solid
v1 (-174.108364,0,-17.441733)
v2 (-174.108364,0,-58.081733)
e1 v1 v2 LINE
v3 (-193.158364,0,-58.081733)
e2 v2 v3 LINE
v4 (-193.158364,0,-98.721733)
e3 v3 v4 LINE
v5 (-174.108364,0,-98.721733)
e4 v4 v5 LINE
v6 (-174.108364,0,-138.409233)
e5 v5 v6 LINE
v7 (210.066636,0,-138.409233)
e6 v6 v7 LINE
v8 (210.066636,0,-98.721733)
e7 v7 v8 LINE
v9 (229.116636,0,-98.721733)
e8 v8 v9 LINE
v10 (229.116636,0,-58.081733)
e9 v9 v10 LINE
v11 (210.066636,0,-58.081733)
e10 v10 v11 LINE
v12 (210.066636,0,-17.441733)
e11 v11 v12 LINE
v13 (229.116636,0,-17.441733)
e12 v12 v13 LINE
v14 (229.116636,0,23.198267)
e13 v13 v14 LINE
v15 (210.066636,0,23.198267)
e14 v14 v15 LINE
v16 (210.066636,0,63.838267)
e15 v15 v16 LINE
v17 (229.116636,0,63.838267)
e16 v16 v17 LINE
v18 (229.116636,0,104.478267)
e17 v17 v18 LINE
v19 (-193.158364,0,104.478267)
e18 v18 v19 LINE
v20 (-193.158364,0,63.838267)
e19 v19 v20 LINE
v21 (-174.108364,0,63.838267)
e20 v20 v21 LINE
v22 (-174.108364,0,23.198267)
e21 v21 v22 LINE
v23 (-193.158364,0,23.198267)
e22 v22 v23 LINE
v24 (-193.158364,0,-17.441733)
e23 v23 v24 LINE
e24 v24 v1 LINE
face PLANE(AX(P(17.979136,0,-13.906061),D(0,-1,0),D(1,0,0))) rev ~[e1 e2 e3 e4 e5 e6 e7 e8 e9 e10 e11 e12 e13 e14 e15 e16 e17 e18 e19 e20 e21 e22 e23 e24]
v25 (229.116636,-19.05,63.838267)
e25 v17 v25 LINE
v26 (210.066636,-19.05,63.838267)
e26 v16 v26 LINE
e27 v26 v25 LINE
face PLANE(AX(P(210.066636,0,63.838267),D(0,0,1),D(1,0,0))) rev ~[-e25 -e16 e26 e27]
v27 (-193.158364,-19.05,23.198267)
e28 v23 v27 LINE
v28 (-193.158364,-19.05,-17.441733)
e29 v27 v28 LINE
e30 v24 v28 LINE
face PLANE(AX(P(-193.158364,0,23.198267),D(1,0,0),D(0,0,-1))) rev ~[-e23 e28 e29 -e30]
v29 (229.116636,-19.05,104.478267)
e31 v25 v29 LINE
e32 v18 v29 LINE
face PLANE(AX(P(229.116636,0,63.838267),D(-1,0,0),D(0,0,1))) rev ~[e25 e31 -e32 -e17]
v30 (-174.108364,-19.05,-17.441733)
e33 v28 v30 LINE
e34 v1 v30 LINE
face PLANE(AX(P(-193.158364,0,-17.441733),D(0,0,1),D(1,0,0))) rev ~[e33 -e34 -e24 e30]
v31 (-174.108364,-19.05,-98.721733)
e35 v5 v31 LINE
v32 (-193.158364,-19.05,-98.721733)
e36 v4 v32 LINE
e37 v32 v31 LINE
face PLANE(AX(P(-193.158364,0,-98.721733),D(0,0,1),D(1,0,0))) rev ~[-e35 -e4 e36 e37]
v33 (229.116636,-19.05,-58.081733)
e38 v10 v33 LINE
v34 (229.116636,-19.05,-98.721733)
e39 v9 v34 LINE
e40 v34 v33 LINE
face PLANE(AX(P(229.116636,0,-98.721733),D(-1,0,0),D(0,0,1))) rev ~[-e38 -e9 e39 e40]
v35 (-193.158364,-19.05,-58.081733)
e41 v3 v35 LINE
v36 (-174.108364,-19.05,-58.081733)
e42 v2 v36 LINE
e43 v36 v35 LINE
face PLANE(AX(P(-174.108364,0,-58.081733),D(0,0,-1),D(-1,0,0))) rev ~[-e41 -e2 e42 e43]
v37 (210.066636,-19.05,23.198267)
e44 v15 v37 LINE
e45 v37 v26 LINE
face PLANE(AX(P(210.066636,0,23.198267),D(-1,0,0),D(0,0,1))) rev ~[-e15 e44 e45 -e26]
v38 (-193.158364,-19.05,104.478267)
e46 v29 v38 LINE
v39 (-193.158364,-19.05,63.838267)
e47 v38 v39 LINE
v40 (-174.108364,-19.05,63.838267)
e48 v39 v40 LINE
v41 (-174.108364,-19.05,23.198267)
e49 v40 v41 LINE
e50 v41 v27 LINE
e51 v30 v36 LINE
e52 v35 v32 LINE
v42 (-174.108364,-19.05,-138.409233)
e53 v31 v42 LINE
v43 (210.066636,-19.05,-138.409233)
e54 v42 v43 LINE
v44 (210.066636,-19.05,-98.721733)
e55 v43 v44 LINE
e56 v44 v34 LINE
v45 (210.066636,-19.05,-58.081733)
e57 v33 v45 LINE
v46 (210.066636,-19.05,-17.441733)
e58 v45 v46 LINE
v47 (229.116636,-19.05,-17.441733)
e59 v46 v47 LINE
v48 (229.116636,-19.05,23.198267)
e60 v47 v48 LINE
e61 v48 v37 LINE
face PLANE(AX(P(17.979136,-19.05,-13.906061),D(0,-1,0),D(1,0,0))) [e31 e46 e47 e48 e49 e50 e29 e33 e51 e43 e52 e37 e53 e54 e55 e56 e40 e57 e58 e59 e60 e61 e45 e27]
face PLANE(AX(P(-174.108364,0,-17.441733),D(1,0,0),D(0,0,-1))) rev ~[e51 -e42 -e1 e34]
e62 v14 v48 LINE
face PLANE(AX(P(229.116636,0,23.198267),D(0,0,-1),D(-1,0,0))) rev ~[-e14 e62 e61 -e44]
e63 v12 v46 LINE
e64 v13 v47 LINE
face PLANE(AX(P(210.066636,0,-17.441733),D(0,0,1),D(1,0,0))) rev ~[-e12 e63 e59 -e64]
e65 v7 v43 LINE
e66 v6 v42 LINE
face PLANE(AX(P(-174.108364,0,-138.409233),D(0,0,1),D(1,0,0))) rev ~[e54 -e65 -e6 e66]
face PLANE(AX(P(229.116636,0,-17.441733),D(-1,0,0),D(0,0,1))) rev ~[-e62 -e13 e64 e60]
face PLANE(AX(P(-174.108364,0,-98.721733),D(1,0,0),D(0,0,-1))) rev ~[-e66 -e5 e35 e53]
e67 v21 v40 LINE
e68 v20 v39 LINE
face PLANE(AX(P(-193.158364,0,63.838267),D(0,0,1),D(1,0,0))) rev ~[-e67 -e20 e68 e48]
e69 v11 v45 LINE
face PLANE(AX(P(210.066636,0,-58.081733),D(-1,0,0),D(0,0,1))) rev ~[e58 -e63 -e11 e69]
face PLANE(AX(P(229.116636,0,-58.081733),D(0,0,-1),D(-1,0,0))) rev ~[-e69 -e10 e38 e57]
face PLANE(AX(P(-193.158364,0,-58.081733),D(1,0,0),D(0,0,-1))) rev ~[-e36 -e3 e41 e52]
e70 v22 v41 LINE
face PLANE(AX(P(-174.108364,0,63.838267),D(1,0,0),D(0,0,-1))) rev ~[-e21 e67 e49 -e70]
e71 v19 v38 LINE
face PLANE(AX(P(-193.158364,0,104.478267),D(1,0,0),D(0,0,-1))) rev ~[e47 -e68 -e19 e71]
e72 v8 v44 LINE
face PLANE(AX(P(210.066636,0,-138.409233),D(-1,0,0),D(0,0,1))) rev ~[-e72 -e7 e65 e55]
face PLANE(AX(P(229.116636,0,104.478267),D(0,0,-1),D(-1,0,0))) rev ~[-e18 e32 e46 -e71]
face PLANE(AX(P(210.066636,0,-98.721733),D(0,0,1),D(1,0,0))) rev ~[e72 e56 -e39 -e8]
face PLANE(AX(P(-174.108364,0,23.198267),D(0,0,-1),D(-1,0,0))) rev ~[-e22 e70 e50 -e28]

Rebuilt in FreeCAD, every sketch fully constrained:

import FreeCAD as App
import Part
import Sketcher

V = App.Vector
Q = App.Units.Quantity

doc = App.newDocument("Part")
body = doc.addObject("PartDesign::Body", "Body")

# Sketch on XZ plane
sketch1 = body.newObject("Sketcher::SketchObject", "Sketch")
sketch1.AttachmentSupport = (doc.getObject("XZ_Plane"), [""])
sketch1.MapMode = "FlatFace"
sketch1.addGeometry([
    Part.LineSegment(V(-193.158364, 104.478267, 0), V(-193.158364, 63.838267, 0)),  # 0
    Part.LineSegment(V(-193.158364, 63.838267, 0), V(-174.108364, 63.838267, 0)),  # 1
    Part.LineSegment(V(-174.108364, 63.838267, 0), V(-174.108364, 23.198267, 0)),  # 2
    Part.LineSegment(V(-174.108364, 23.198267, 0), V(-193.158364, 23.198267, 0)),  # 3
    Part.LineSegment(V(-193.158364, 23.198267, 0), V(-193.158364, -17.441733, 0)),  # 4
    Part.LineSegment(V(-193.158364, -17.441733, 0), V(-174.108364, -17.441733, 0)),  # 5
    Part.LineSegment(V(-174.108364, -17.441733, 0), V(-174.108364, -58.081733, 0)),  # 6
    Part.LineSegment(V(-174.108364, -58.081733, 0), V(-193.158364, -58.081733, 0)),  # 7
    Part.LineSegment(V(-193.158364, -58.081733, 0), V(-193.158364, -98.721733, 0)),  # 8
    Part.LineSegment(V(-193.158364, -98.721733, 0), V(-174.108364, -98.721733, 0)),  # 9
    Part.LineSegment(V(-174.108364, -98.721733, 0), V(-174.108364, -138.409233, 0)),  # 10
    Part.LineSegment(V(-174.108364, -138.409233, 0), V(210.066636, -138.409233, 0)),  # 11
    Part.LineSegment(V(210.066636, -138.409233, 0), V(210.066636, -98.721733, 0)),  # 12
    Part.LineSegment(V(210.066636, -98.721733, 0), V(229.116636, -98.721733, 0)),  # 13
    Part.LineSegment(V(229.116636, -98.721733, 0), V(229.116636, -58.081733, 0)),  # 14
    Part.LineSegment(V(229.116636, -58.081733, 0), V(210.066636, -58.081733, 0)),  # 15
    Part.LineSegment(V(210.066636, -58.081733, 0), V(210.066636, -17.441733, 0)),  # 16
    Part.LineSegment(V(210.066636, -17.441733, 0), V(229.116636, -17.441733, 0)),  # 17
    Part.LineSegment(V(229.116636, -17.441733, 0), V(229.116636, 23.198267, 0)),  # 18
    Part.LineSegment(V(229.116636, 23.198267, 0), V(210.066636, 23.198267, 0)),  # 19
    Part.LineSegment(V(210.066636, 23.198267, 0), V(210.066636, 63.838267, 0)),  # 20
    Part.LineSegment(V(210.066636, 63.838267, 0), V(229.116636, 63.838267, 0)),  # 21
    Part.LineSegment(V(229.116636, 63.838267, 0), V(229.116636, 104.478267, 0)),  # 22
    Part.LineSegment(V(229.116636, 104.478267, 0), V(-193.158364, 104.478267, 0)),  # 23
], False)
sketch1.addConstraint([
    Sketcher.Constraint("Coincident", 0, 2, 1, 1),
    Sketcher.Constraint("Coincident", 1, 2, 2, 1),
    Sketcher.Constraint("Coincident", 2, 2, 3, 1),
    Sketcher.Constraint("Coincident", 3, 2, 4, 1),
    Sketcher.Constraint("Coincident", 4, 2, 5, 1),
    Sketcher.Constraint("Coincident", 5, 2, 6, 1),
    Sketcher.Constraint("Coincident", 6, 2, 7, 1),
    Sketcher.Constraint("Coincident", 7, 2, 8, 1),
    Sketcher.Constraint("Coincident", 8, 2, 9, 1),
    Sketcher.Constraint("Coincident", 9, 2, 10, 1),
    Sketcher.Constraint("Coincident", 10, 2, 11, 1),
    Sketcher.Constraint("Coincident", 11, 2, 12, 1),
    Sketcher.Constraint("Coincident", 12, 2, 13, 1),
    Sketcher.Constraint("Coincident", 13, 2, 14, 1),
    Sketcher.Constraint("Coincident", 14, 2, 15, 1),
    Sketcher.Constraint("Coincident", 15, 2, 16, 1),
    Sketcher.Constraint("Coincident", 16, 2, 17, 1),
    Sketcher.Constraint("Coincident", 17, 2, 18, 1),
    Sketcher.Constraint("Coincident", 18, 2, 19, 1),
    Sketcher.Constraint("Coincident", 19, 2, 20, 1),
    Sketcher.Constraint("Coincident", 20, 2, 21, 1),
    Sketcher.Constraint("Coincident", 21, 2, 22, 1),
    Sketcher.Constraint("Coincident", 22, 2, 23, 1),
    Sketcher.Constraint("Coincident", 23, 2, 0, 1),
    Sketcher.Constraint("Vertical", 0),
    Sketcher.Constraint("Horizontal", 1),
    Sketcher.Constraint("Vertical", 2),
    Sketcher.Constraint("Horizontal", 3),
    Sketcher.Constraint("Vertical", 4),
    Sketcher.Constraint("Horizontal", 5),
    Sketcher.Constraint("Vertical", 6),
    Sketcher.Constraint("Horizontal", 7),
    Sketcher.Constraint("Vertical", 8),
    Sketcher.Constraint("Horizontal", 9),
    Sketcher.Constraint("Vertical", 10),
    Sketcher.Constraint("Horizontal", 11),
    Sketcher.Constraint("Vertical", 12),
    Sketcher.Constraint("Horizontal", 13),
    Sketcher.Constraint("Vertical", 14),
    Sketcher.Constraint("Horizontal", 15),
    Sketcher.Constraint("Vertical", 16),
    Sketcher.Constraint("Horizontal", 17),
    Sketcher.Constraint("Vertical", 18),
    Sketcher.Constraint("Horizontal", 19),
    Sketcher.Constraint("Vertical", 20),
    Sketcher.Constraint("Horizontal", 21),
    Sketcher.Constraint("Vertical", 22),
    Sketcher.Constraint("Horizontal", 23),
    Sketcher.Constraint("Horizontal", 9, 2, 12, 2),
    Sketcher.Constraint("Horizontal", 7, 2, 14, 2),
    Sketcher.Constraint("Horizontal", 5, 2, 16, 2),
    Sketcher.Constraint("Horizontal", 3, 2, 18, 2),
    Sketcher.Constraint("Horizontal", 1, 2, 20, 2),
    Sketcher.Constraint("Vertical", 0, 2, 3, 2),
    Sketcher.Constraint("Vertical", 2, 2, 5, 2),
    Sketcher.Constraint("Vertical", 4, 2, 7, 2),
    Sketcher.Constraint("Vertical", 6, 2, 9, 2),
    Sketcher.Constraint("Vertical", 12, 2, 15, 2),
    Sketcher.Constraint("Vertical", 14, 2, 17, 2),
    Sketcher.Constraint("Vertical", 16, 2, 19, 2),
    Sketcher.Constraint("Vertical", 18, 2, 21, 2),
    Sketcher.Constraint("Equal", 9, 13),
    Sketcher.Constraint("Equal", 0, 2),
    Sketcher.Constraint("Equal", 2, 4),
    Sketcher.Constraint("Equal", 4, 6),
    Sketcher.Constraint("Equal", 6, 8),
    Sketcher.Constraint("DistanceY", 0, 2, 0, 1, Q("1.6 in")),
    Sketcher.Constraint("DistanceX", 1, 1, 1, 2, Q("0.75 in")),
    Sketcher.Constraint("DistanceX", 11, 1, 11, 2, Q("15.125 in")),
    Sketcher.Constraint("DistanceY", 10, 2, 10, 1, Q("1.5625 in")),
    Sketcher.Constraint("DistanceX", 0, 2, -1, 1, 193.158364),
    Sketcher.Constraint("DistanceY", -1, 1, 0, 2, 63.838267),
])
pad1 = body.newObject("PartDesign::Pad", "Pad")
pad1.Profile = sketch1
pad1.Length = Q("0.75 in")

doc.recompute()
